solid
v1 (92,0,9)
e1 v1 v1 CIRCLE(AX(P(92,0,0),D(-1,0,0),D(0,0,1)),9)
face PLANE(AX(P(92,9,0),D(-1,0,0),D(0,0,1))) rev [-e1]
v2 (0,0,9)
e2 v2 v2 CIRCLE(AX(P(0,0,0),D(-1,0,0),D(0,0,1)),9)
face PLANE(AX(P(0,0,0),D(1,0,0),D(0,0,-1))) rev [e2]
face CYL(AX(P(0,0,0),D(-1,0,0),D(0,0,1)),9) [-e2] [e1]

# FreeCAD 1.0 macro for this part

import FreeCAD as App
import Part
import Sketcher
from FreeCAD import Vector
Q = App.Units.Quantity

doc = App.newDocument("Part")
params = doc.addObject("Spreadsheet::Sheet", "Params")
for row, (alias, value) in enumerate([
    ("sketch1_width", "92 mm"),
    ("sketch1_height", "9 mm"),
    ("revolution_angle", "360 deg"),
], start=1):
    params.set(f"A{row}", alias)
    params.set(f"B{row}", "=" + value)
    params.setAlias(f"B{row}", alias)

body = doc.addObject("PartDesign::Body", "Body")

sketch1 = body.newObject("Sketcher::SketchObject", "Sketch")
sketch1.AttachmentSupport = (doc.getObject("XY_Plane"), [""])
sketch1.MapMode = "FlatFace"
sketch1.addGeometry(Part.LineSegment(Vector(0, 9, 0), Vector(0, 0, 0)), False)
sketch1.addGeometry(Part.LineSegment(Vector(0, 0, 0), Vector(92, 0, 0)), False)
sketch1.addGeometry(Part.LineSegment(Vector(92, 0, 0), Vector(92, 9, 0)), False)
sketch1.addGeometry(Part.LineSegment(Vector(92, 9, 0), Vector(0, 9, 0)), False)
sketch1.addConstraint(Sketcher.Constraint("Coincident", 0, 2, 1, 1))
sketch1.addConstraint(Sketcher.Constraint("Coincident", 1, 2, 2, 1))
sketch1.addConstraint(Sketcher.Constraint("Coincident", 2, 2, 3, 1))
sketch1.addConstraint(Sketcher.Constraint("Coincident", 3, 2, 0, 1))
sketch1.addConstraint(Sketcher.Constraint("Vertical", 0))
sketch1.addConstraint(Sketcher.Constraint("Horizontal", 1))
sketch1.addConstraint(Sketcher.Constraint("Vertical", 2))
sketch1.addConstraint(Sketcher.Constraint("Horizontal", 3))
sketch1.addConstraint(Sketcher.Constraint("Coincident", 0, 2, -1, 1))
sketch1.addConstraint(Sketcher.Constraint("DistanceX", 1, 1, 1, 2, Q("92 mm")))
sketch1.addConstraint(Sketcher.Constraint("DistanceY", 0, 2, 0, 1, Q("9 mm")))
sketch1.setExpression("Constraints[9]", "Params.sketch1_width")
sketch1.setExpression("Constraints[10]", "Params.sketch1_height")
revolution = body.newObject("PartDesign::Revolution", "Revolution")
revolution.Profile = sketch1
revolution.ReferenceAxis = (sketch1, ["H_Axis"])
revolution.setExpression("Angle", "Params.revolution_angle")

doc.recompute()
